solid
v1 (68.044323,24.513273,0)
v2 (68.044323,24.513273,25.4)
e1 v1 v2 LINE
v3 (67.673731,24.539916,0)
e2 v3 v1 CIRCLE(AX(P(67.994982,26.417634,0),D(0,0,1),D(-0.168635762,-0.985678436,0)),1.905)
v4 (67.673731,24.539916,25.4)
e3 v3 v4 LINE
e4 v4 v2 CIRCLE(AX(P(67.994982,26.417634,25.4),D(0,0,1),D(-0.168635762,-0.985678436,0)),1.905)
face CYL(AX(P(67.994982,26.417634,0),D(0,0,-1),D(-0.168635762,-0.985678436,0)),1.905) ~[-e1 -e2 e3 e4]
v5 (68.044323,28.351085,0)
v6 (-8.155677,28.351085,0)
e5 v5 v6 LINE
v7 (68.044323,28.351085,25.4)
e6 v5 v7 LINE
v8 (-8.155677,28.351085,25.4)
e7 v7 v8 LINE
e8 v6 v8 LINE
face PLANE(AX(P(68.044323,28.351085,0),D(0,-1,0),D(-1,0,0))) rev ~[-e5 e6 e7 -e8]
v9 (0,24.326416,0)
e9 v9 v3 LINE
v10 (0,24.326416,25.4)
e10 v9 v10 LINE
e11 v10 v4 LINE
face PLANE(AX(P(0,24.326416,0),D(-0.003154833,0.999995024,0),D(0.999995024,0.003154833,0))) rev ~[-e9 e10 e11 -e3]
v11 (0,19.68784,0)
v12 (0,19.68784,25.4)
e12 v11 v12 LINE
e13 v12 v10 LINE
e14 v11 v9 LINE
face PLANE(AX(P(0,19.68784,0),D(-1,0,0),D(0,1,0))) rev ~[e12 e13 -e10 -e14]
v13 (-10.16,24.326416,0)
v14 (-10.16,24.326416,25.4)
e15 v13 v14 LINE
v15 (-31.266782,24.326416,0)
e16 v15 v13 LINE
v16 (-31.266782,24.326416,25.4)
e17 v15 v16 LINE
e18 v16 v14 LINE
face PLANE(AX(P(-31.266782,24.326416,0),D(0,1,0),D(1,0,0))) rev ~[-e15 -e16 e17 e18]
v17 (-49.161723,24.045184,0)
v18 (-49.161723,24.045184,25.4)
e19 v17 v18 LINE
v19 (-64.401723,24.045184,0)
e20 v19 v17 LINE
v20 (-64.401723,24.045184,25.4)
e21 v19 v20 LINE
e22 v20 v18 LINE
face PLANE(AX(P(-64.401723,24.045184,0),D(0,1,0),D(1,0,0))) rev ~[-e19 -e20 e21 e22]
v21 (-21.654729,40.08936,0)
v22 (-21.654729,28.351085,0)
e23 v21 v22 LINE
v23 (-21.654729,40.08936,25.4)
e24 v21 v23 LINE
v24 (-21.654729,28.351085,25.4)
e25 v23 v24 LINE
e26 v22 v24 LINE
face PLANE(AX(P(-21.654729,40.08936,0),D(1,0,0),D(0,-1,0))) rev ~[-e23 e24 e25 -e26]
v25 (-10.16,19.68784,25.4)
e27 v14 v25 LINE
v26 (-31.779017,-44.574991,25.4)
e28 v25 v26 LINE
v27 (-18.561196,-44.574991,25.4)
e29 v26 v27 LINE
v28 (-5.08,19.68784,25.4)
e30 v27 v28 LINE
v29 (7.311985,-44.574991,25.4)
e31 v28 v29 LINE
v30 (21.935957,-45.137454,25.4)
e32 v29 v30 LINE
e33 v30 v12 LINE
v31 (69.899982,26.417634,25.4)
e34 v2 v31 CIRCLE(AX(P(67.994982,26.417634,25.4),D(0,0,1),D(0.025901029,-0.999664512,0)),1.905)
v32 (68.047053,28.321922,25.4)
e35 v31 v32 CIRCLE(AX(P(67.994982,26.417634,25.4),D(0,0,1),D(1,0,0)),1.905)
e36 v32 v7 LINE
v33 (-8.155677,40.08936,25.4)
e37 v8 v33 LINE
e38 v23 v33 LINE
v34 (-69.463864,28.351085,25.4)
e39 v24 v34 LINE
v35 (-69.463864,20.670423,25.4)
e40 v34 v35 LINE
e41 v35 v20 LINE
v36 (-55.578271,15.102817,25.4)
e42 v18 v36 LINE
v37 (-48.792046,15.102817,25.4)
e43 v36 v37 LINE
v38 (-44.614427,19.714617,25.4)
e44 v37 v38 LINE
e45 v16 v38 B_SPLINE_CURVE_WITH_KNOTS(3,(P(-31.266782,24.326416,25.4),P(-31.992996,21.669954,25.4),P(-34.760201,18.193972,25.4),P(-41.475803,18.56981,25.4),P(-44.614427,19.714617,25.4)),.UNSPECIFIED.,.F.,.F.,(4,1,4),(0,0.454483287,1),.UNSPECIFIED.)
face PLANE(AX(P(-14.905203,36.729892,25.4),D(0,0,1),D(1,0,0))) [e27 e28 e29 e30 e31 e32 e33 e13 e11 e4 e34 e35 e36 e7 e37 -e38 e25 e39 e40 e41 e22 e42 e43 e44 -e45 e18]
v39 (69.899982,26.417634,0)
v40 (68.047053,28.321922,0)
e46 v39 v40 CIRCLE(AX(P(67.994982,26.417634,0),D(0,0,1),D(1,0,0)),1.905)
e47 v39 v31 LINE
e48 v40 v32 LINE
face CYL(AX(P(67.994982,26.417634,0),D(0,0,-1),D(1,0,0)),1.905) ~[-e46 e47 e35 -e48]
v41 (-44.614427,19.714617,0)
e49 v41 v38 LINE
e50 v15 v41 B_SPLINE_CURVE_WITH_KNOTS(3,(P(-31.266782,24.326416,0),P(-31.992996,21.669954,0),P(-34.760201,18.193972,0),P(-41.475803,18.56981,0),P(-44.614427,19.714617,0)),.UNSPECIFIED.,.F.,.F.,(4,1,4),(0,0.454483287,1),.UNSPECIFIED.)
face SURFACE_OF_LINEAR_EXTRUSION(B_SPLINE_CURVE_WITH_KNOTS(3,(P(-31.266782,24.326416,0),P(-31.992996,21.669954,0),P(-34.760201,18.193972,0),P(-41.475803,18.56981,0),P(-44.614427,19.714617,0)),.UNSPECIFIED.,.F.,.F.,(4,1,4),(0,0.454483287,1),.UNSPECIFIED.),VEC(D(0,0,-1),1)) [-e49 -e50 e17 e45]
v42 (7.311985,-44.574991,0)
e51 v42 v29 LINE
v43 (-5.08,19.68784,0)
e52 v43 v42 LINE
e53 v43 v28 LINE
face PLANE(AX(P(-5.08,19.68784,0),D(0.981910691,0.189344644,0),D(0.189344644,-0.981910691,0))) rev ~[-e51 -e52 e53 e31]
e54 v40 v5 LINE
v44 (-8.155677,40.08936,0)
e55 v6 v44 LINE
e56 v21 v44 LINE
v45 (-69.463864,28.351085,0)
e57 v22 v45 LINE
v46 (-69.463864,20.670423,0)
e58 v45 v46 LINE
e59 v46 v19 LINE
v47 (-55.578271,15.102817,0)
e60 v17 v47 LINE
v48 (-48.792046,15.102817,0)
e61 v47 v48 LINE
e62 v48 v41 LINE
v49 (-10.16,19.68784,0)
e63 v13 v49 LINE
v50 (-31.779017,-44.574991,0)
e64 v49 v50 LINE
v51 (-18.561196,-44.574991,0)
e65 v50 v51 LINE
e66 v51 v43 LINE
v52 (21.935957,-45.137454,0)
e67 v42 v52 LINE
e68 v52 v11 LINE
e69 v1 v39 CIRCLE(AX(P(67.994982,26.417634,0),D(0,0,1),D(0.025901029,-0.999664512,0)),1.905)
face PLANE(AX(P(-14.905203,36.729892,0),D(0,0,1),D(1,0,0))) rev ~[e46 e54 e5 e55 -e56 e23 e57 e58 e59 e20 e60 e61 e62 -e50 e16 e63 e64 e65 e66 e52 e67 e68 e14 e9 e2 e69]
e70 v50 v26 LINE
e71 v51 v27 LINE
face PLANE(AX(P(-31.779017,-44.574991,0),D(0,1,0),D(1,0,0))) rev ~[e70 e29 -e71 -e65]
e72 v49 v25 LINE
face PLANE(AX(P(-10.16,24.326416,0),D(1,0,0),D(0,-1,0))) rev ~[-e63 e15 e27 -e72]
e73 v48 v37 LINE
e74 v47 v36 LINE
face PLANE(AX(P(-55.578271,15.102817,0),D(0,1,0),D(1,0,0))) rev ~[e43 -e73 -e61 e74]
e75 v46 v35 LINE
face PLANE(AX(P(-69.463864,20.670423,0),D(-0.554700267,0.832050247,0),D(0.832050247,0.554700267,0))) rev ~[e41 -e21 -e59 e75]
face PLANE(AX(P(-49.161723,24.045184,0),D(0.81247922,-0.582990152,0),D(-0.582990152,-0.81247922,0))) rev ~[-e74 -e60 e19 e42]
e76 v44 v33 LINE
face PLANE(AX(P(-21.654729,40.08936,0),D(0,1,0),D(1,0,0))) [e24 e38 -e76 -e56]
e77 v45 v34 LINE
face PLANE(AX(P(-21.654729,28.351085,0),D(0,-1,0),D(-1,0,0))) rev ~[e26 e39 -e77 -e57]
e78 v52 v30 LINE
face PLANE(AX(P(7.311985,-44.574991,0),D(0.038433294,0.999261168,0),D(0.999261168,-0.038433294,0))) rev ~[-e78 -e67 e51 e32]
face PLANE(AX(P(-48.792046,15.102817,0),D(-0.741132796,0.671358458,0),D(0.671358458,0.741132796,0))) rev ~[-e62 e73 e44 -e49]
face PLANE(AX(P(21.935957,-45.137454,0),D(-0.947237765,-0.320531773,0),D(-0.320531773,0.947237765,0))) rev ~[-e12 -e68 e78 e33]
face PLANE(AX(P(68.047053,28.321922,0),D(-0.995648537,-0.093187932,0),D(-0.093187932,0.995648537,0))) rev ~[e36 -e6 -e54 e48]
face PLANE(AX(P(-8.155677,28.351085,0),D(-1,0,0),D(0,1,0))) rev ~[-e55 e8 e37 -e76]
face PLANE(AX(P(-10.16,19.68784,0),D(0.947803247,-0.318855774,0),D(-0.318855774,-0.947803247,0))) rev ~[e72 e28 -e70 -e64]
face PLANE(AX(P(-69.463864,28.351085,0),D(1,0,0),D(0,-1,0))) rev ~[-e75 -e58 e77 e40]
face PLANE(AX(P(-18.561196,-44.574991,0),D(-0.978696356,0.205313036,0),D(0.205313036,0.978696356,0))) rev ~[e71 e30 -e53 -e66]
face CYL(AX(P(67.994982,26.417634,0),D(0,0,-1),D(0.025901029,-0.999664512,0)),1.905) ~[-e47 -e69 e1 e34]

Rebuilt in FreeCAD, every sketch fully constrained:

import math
import FreeCAD as App
import Part
import Sketcher

V = App.Vector
Q = App.Units.Quantity

doc = App.newDocument("Part")
body = doc.addObject("PartDesign::Body", "Body")

# Sketch on XY plane
sketch1 = body.newObject("Sketcher::SketchObject", "Sketch")
sketch1.AttachmentSupport = (doc.getObject("XY_Plane"), [""])
sketch1.MapMode = "FlatFace"
sketch1.addGeometry(Part.LineSegment(V(-21.654729, 40.08936, 0), V(-21.654729, 28.351085, 0)), False)
sketch1.addGeometry(Part.LineSegment(V(-21.654729, 28.351085, 0), V(-69.463864, 28.351085, 0)), False)
sketch1.addGeometry(Part.LineSegment(V(-69.463864, 28.351085, 0), V(-69.463864, 20.670423, 0)), False)
sketch1.addGeometry(Part.LineSegment(V(-69.463864, 20.670423, 0), V(-64.401723, 24.045184, 0)), False)
sketch1.addGeometry(Part.LineSegment(V(-64.401723, 24.045184, 0), V(-49.161723, 24.045184, 0)), False)
sketch1.addGeometry(Part.LineSegment(V(-49.161723, 24.045184, 0), V(-55.578271, 15.102817, 0)), False)
sketch1.addGeometry(Part.LineSegment(V(-55.578271, 15.102817, 0), V(-48.792046, 15.102817, 0)), False)
sketch1.addGeometry(Part.LineSegment(V(-48.792046, 15.102817, 0), V(-44.614427, 19.714617, 0)), False)
sketch1.addGeometry(Part.BSplineCurve([V(-31.266782, 24.326416, 0), V(-31.992996, 21.669954, 0), V(-34.760201, 18.193972, 0), V(-41.475803, 18.56981, 0), V(-44.614427, 19.714617, 0)], [4, 1, 4], [0, 0.454483287, 1], False, 3, [1, 1, 1, 1, 1], False), False)
sketch1.addGeometry(Part.LineSegment(V(-31.266782, 24.326416, 0), V(-10.16, 24.326416, 0)), False)
sketch1.addGeometry(Part.LineSegment(V(-10.16, 24.326416, 0), V(-10.16, 19.68784, 0)), False)
sketch1.addGeometry(Part.LineSegment(V(-10.16, 19.68784, 0), V(-31.779017, -44.574991, 0)), False)
sketch1.addGeometry(Part.LineSegment(V(-31.779017, -44.574991, 0), V(-18.561196, -44.574991, 0)), False)
sketch1.addGeometry(Part.LineSegment(V(-18.561196, -44.574991, 0), V(-5.08, 19.68784, 0)), False)
sketch1.addGeometry(Part.LineSegment(V(-5.08, 19.68784, 0), V(7.311985, -44.574991, 0)), False)
sketch1.addGeometry(Part.LineSegment(V(7.311985, -44.574991, 0), V(21.935957, -45.137454, 0)), False)
sketch1.addGeometry(Part.LineSegment(V(21.935957, -45.137454, 0), V(0, 19.68784, 0)), False)
sketch1.addGeometry(Part.LineSegment(V(0, 19.68784, 0), V(0, 24.326416, 0)), False)
sketch1.addGeometry(Part.LineSegment(V(0, 24.326416, 0), V(67.673731, 24.539916, 0)), False)
sketch1.addGeometry(Part.ArcOfCircle(Part.Circle(V(67.994982, 26.417634, 0), V(0, 0, 1), 1.905), math.radians(-99.708509), math.radians(-88.515814)), False)
sketch1.addGeometry(Part.ArcOfCircle(Part.Circle(V(67.994982, 26.417634, 0), V(0, 0, 1), 1.905), math.radians(-88.515814), math.radians(0)), False)
sketch1.addGeometry(Part.ArcOfCircle(Part.Circle(V(67.994982, 26.417634, 0), V(0, 0, 1), 1.905), math.radians(0), math.radians(88.433689)), False)
sketch1.addGeometry(Part.LineSegment(V(68.047053, 28.321922, 0), V(68.044323, 28.351085, 0)), False)
sketch1.addGeometry(Part.LineSegment(V(68.044323, 28.351085, 0), V(-8.155677, 28.351085, 0)), False)
sketch1.addGeometry(Part.LineSegment(V(-8.155677, 28.351085, 0), V(-8.155677, 40.08936, 0)), False)
sketch1.addGeometry(Part.LineSegment(V(-8.155677, 40.08936, 0), V(-21.654729, 40.08936, 0)), False)
sketch1.addConstraint(Sketcher.Constraint("Block", 8))
sketch1.addConstraint(Sketcher.Constraint("Coincident", 0, 2, 1, 1))
sketch1.addConstraint(Sketcher.Constraint("Coincident", 1, 2, 2, 1))
sketch1.addConstraint(Sketcher.Constraint("Coincident", 2, 2, 3, 1))
sketch1.addConstraint(Sketcher.Constraint("Coincident", 3, 2, 4, 1))
sketch1.addConstraint(Sketcher.Constraint("Coincident", 4, 2, 5, 1))
sketch1.addConstraint(Sketcher.Constraint("Coincident", 5, 2, 6, 1))
sketch1.addConstraint(Sketcher.Constraint("Coincident", 6, 2, 7, 1))
sketch1.addConstraint(Sketcher.Constraint("Coincident", 7, 2, 8, 2))
sketch1.addConstraint(Sketcher.Constraint("Coincident", 8, 1, 9, 1))
sketch1.addConstraint(Sketcher.Constraint("Coincident", 9, 2, 10, 1))
sketch1.addConstraint(Sketcher.Constraint("Coincident", 10, 2, 11, 1))
sketch1.addConstraint(Sketcher.Constraint("Coincident", 11, 2, 12, 1))
sketch1.addConstraint(Sketcher.Constraint("Coincident", 12, 2, 13, 1))
sketch1.addConstraint(Sketcher.Constraint("Coincident", 13, 2, 14, 1))
sketch1.addConstraint(Sketcher.Constraint("Coincident", 14, 2, 15, 1))
sketch1.addConstraint(Sketcher.Constraint("Coincident", 15, 2, 16, 1))
sketch1.addConstraint(Sketcher.Constraint("Coincident", 16, 2, 17, 1))
sketch1.addConstraint(Sketcher.Constraint("Coincident", 17, 2, 18, 1))
sketch1.addConstraint(Sketcher.Constraint("Coincident", 18, 2, 19, 1))
sketch1.addConstraint(Sketcher.Constraint("Coincident", 19, 2, 20, 1))
sketch1.addConstraint(Sketcher.Constraint("Coincident", 20, 2, 21, 1))
sketch1.addConstraint(Sketcher.Constraint("Coincident", 21, 2, 22, 1))
sketch1.addConstraint(Sketcher.Constraint("Coincident", 22, 2, 23, 1))
sketch1.addConstraint(Sketcher.Constraint("Coincident", 23, 2, 24, 1))
sketch1.addConstraint(Sketcher.Constraint("Coincident", 24, 2, 25, 1))
sketch1.addConstraint(Sketcher.Constraint("Coincident", 25, 2, 0, 1))
sketch1.addConstraint(Sketcher.Constraint("Vertical", 0))
sketch1.addConstraint(Sketcher.Constraint("Horizontal", 1))
sketch1.addConstraint(Sketcher.Constraint("Vertical", 2))
sketch1.addConstraint(Sketcher.Constraint("Horizontal", 4))
sketch1.addConstraint(Sketcher.Constraint("Horizontal", 6))
sketch1.addConstraint(Sketcher.Constraint("Horizontal", 9))
sketch1.addConstraint(Sketcher.Constraint("Vertical", 10))
sketch1.addConstraint(Sketcher.Constraint("Horizontal", 12))
sketch1.addConstraint(Sketcher.Constraint("Vertical", 17))
sketch1.addConstraint(Sketcher.Constraint("Horizontal", 23))
sketch1.addConstraint(Sketcher.Constraint("Vertical", 24))
sketch1.addConstraint(Sketcher.Constraint("Horizontal", 25))
sketch1.addConstraint(Sketcher.Constraint("Coincident", 20, 3, 19, 3))
sketch1.addConstraint(Sketcher.Constraint("Coincident", 21, 3, 19, 3))
sketch1.addConstraint(Sketcher.Constraint("PointOnObject", 16, 2, -2))
sketch1.addConstraint(Sketcher.Constraint("DistanceX", 23, 2, 23, 1, Q("3 in")))
sketch1.addConstraint(Sketcher.Constraint("DistanceX", 4, 1, 4, 2, Q("0.6 in")))
sketch1.addConstraint(Sketcher.Constraint("Radius", 19, Q("0.075 in")))
sketch1.addConstraint(Sketcher.Constraint("DistanceX", 9, 2, -1, 1, Q("0.4 in")))
sketch1.addConstraint(Sketcher.Constraint("DistanceX", 13, 2, -1, 1, Q("0.2 in")))
sketch1.addConstraint(Sketcher.Constraint("DistanceX", 12, 1, 12, 2, Q("13.217822 mm")))
sketch1.addConstraint(Sketcher.Constraint("DistanceY", 2, 2, 2, 1, Q("7.680662 mm")))
sketch1.addConstraint(Sketcher.Constraint("DistanceY", 3, 2, 1, 2, Q("4.305901 mm")))
sketch1.addConstraint(Sketcher.Constraint("DistanceY", 6, 2, 7, 2, Q("4.611799 mm")))
sketch1.addConstraint(Sketcher.Constraint("DistanceX", 7, 2, 0, 2, Q("22.959698 mm")))
sketch1.addConstraint(Sketcher.Constraint("DistanceY", 17, 2, 18, 2, Q("0.2135 mm")))
sketch1.addConstraint(Sketcher.Constraint("Distance", 5, Q("11.006271 mm")))
sketch1.addConstraint(Sketcher.Constraint("Distance", 11, Q("67.801869 mm")))
sketch1.addConstraint(Sketcher.Constraint("Distance", 22, Q("0.029291 mm")))
sketch1.addConstraint(Sketcher.Constraint("DistanceX", 1, 2, 1, 1, Q("47.809135 mm")))
sketch1.addConstraint(Sketcher.Constraint("DistanceX", 6, 1, 6, 2, Q("6.786225 mm")))
sketch1.addConstraint(Sketcher.Constraint("DistanceX", 25, 2, 25, 1, Q("13.499052 mm")))
sketch1.addConstraint(Sketcher.Constraint("DistanceY", 0, 2, 0, 1, Q("11.738275 mm")))
sketch1.addConstraint(Sketcher.Constraint("DistanceY", 10, 2, 10, 1, Q("4.638575 mm")))
sketch1.addConstraint(Sketcher.Constraint("DistanceY", 17, 1, 17, 2, Q("4.638575 mm")))
sketch1.addConstraint(Sketcher.Constraint("DistanceY", 24, 1, 24, 2, Q("11.738275 mm")))
sketch1.addConstraint(Sketcher.Constraint("DistanceX", 5, 2, -1, 1, Q("55.578271 mm")))
sketch1.addConstraint(Sketcher.Constraint("DistanceY", 11, 2, -1, 1, Q("44.574991 mm")))
sketch1.addConstraint(Sketcher.Constraint("DistanceY", -1, 1, 13, 2, Q("19.68784 mm")))
sketch1.addConstraint(Sketcher.Constraint("DistanceY", 14, 2, -1, 1, Q("44.574991 mm")))
sketch1.addConstraint(Sketcher.Constraint("DistanceY", -1, 1, 16, 2, Q("19.68784 mm")))
sketch1.addConstraint(Sketcher.Constraint("DistanceX", -1, 1, 18, 2, Q("67.673731 mm")))
sketch1.addConstraint(Sketcher.Constraint("DistanceY", -1, 1, 21, 2, Q("28.321922 mm")))
sketch1.addConstraint(Sketcher.Constraint("DistanceY", -1, 1, 24, 2, Q("40.08936 mm")))
sketch1.addConstraint(Sketcher.Constraint("DistanceX", 12, 2, 14, 2, Q("25.873181 mm")))
sketch1.addConstraint(Sketcher.Constraint("DistanceX", 14, 2, 15, 2, Q("14.623971 mm")))
sketch1.addConstraint(Sketcher.Constraint("DistanceX", 19, 3, 19, 2, Q("0.049341 mm")))
sketch1.addConstraint(Sketcher.Constraint("DistanceY", 19, 2, 20, 2, Q("1.904361 mm")))
sketch1.addConstraint(Sketcher.Constraint("Distance", 15, Q("14.634784 mm")))
pad1 = body.newObject("PartDesign::Pad", "Pad")
pad1.Profile = sketch1
pad1.Length = Q("1 in")

doc.recompute()
